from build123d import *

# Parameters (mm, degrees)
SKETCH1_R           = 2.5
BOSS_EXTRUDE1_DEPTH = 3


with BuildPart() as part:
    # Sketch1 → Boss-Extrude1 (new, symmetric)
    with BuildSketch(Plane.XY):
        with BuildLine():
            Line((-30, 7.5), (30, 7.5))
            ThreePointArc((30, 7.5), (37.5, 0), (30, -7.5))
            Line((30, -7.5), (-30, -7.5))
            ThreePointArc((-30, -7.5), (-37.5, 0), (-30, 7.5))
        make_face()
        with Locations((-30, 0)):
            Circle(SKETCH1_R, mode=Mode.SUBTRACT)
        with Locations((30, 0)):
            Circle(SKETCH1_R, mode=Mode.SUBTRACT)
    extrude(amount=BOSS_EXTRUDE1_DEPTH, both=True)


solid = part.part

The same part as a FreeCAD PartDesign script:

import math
import FreeCAD as App
import Part
import Sketcher
Q = App.Units.Quantity

doc = App.newDocument("Part")
body = doc.addObject("PartDesign::Body", "Body")

sketch1 = body.newObject("Sketcher::SketchObject", "Sketch")
sketch1.AttachmentSupport = (doc.getObject("XY_Plane"), [""])
sketch1.MapMode = "FlatFace"
sketch1.addGeometry([
    Part.LineSegment(App.Vector(30, 7.5, 0), App.Vector(-30, 7.5, 0)),
    Part.ArcOfCircle(Part.Circle(App.Vector(-30, 0, 0), App.Vector(0, 0, 1), 7.5), math.radians(90), math.radians(270)),
    Part.LineSegment(App.Vector(-30, -7.5, 0), App.Vector(30, -7.5, 0)),
    Part.ArcOfCircle(Part.Circle(App.Vector(30, 0, 0), App.Vector(0, 0, 1), 7.5), math.radians(-90), math.radians(90)),
    Part.Circle(App.Vector(30, 0, 0), App.Vector(0, 0, 1), 2.5),
    Part.Circle(App.Vector(-30, 0, 0), App.Vector(0, 0, 1), 2.5),
], False)
sketch1.addConstraint([
    Sketcher.Constraint("Tangent", 0, 2, 1, 1),
    Sketcher.Constraint("Tangent", 1, 2, 2, 1),
    Sketcher.Constraint("Tangent", 2, 2, 3, 1),
    Sketcher.Constraint("Tangent", 3, 2, 0, 1),
    Sketcher.Constraint("Horizontal", 0),
    Sketcher.Constraint("Horizontal", 2),
    Sketcher.Constraint("Coincident", 4, 3, 3, 3),
    Sketcher.Constraint("Coincident", 5, 3, 1, 3),
    Sketcher.Constraint("Equal", 4, 5),
    Sketcher.Constraint("Symmetric", 1, 3, 3, 3, -1, 1),
    Sketcher.Constraint("Diameter", 4, Q("5 mm")),
    Sketcher.Constraint("Radius", 1, Q("7.5 mm")),
    Sketcher.Constraint("DistanceX", 0, 2, 0, 1, Q("60 mm")),
])
pad1 = body.newObject("PartDesign::Pad", "Pad")
pad1.Profile = sketch1
pad1.Length = 6
pad1.Midplane = True

doc.recompute()
